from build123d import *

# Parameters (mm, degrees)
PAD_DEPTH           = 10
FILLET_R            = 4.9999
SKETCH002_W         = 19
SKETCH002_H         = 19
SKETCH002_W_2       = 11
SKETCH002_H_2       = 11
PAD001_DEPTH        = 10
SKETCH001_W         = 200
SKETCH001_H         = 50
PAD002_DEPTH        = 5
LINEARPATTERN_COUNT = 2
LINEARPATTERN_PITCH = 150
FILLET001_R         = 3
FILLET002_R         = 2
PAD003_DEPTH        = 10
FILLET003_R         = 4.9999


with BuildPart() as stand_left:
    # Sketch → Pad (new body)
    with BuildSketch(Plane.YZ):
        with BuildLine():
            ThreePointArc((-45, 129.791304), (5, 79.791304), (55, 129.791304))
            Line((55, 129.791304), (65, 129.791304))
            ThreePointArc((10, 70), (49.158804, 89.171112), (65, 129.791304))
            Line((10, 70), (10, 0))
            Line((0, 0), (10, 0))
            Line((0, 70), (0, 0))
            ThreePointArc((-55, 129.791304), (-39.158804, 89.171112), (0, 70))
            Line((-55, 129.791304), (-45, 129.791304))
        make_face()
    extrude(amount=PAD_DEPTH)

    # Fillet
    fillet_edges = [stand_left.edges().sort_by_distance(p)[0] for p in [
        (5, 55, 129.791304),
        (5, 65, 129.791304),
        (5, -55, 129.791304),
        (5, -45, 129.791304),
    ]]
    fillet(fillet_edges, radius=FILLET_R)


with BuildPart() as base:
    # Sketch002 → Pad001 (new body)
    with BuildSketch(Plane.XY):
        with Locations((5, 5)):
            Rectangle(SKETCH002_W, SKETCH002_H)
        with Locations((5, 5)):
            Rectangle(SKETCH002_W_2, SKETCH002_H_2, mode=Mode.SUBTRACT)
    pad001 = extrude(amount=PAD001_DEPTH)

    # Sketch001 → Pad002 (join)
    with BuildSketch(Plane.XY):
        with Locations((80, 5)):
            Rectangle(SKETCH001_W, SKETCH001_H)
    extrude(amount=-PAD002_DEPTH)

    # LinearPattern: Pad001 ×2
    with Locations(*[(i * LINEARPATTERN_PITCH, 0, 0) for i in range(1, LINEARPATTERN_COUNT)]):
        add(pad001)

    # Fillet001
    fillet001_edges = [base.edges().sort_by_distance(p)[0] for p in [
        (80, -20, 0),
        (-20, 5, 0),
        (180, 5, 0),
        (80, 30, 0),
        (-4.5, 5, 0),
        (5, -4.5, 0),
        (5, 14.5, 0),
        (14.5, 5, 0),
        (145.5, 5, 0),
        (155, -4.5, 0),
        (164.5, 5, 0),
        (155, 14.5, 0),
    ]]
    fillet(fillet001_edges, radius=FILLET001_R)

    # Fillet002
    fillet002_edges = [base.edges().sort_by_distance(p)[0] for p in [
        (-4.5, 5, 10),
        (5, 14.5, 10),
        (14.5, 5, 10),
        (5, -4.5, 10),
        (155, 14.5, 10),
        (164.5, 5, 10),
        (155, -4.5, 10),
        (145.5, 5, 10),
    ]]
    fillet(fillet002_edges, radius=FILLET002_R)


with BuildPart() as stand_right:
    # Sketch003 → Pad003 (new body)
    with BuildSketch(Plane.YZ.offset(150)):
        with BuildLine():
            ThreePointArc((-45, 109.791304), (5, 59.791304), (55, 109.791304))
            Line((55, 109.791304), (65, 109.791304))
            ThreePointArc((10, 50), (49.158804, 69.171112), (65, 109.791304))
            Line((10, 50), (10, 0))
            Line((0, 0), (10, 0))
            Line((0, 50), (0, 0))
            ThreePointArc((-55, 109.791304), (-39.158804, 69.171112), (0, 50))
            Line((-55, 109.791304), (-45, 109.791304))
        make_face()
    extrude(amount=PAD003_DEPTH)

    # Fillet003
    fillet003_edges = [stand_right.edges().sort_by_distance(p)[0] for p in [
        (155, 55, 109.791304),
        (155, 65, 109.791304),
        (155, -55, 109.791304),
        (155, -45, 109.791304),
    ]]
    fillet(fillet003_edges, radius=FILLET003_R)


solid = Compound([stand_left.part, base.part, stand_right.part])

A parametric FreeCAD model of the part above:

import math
import FreeCAD as App
import Part
import Sketcher
from FreeCAD import Vector
Q = App.Units.Quantity


def edges_at(feature, points):
    """Names of the edges that pass closest to the given points."""
    edges = feature.Shape.Edges
    near = lambda p: min(range(len(edges)), key=lambda i: edges[i].distToShape(Part.Vertex(*p))[0])
    return sorted({f"Edge{near(p) + 1}" for p in points})


def add_polygon(sketch, points):
    """Adds a closed chain of lines whose ends are joined by coincident constraints."""
    first, n = sketch.GeometryCount, len(points)
    for a, b in zip(points, points[1:] + points[:1]):
        sketch.addGeometry(Part.LineSegment(App.Vector(*a, 0), App.Vector(*b, 0)), False)
    for i in range(n):
        sketch.addConstraint(Sketcher.Constraint("Coincident", first + i, 2, first + (i + 1) % n, 1))

doc = App.newDocument("Part")
body = doc.addObject("PartDesign::Body", "Body")

sketch1 = doc.addObject("Sketcher::SketchObject", "Sketch")
body.addObject(sketch1)
sketch1.AttachmentSupport = (doc.YZ_Plane, [""])
sketch1.MapMode = "FlatFace"
sketch1.addGeometry(Part.ArcOfCircle(Part.Circle(Vector(5, 130, 0), Vector(0, 0, 1), 50), math.radians(180), math.radians(360)), False)
sketch1.addGeometry(Part.LineSegment(Vector(-45, 130, 0), Vector(-55, 130, 0)), False)
sketch1.addGeometry(Part.ArcOfCircle(Part.Circle(Vector(5, 130, 0), Vector(0, 0, 1), 60), math.radians(-180), math.radians(-95)), False)
sketch1.addGeometry(Part.LineSegment(Vector(0, 70, 0), Vector(0, 0, 0)), False)
sketch1.addGeometry(Part.LineSegment(Vector(0, 0, 0), Vector(10, 0, 0)), False)
sketch1.addGeometry(Part.LineSegment(Vector(10, 0, 0), Vector(10, 70, 0)), False)
sketch1.addGeometry(Part.ArcOfCircle(Part.Circle(Vector(5, 130, 0), Vector(0, 0, 1), 60), math.radians(-85), math.radians(0)), False)
sketch1.addGeometry(Part.LineSegment(Vector(65, 130, 0), Vector(55, 130, 0)), False)
sketch1.addConstraint(Sketcher.Constraint("Coincident", 0, 1, 1, 1))
sketch1.addConstraint(Sketcher.Constraint("Coincident", 1, 2, 2, 1))
sketch1.addConstraint(Sketcher.Constraint("Coincident", 2, 2, 3, 1))
sketch1.addConstraint(Sketcher.Constraint("Coincident", 3, 2, 4, 1))
sketch1.addConstraint(Sketcher.Constraint("Coincident", 4, 2, 5, 1))
sketch1.addConstraint(Sketcher.Constraint("Coincident", 5, 2, 6, 1))
sketch1.addConstraint(Sketcher.Constraint("Coincident", 6, 2, 7, 1))
sketch1.addConstraint(Sketcher.Constraint("Coincident", 7, 2, 0, 2))
sketch1.addConstraint(Sketcher.Constraint("Horizontal", 1))
sketch1.addConstraint(Sketcher.Constraint("Vertical", 3))
sketch1.addConstraint(Sketcher.Constraint("Horizontal", 4))
sketch1.addConstraint(Sketcher.Constraint("Vertical", 5))
sketch1.addConstraint(Sketcher.Constraint("Horizontal", 7))
sketch1.addConstraint(Sketcher.Constraint("Coincident", 3, 2, -1, 1))
sketch1.addConstraint(Sketcher.Constraint("Coincident", 2, 3, 0, 3))
sketch1.addConstraint(Sketcher.Constraint("Coincident", 6, 3, 0, 3))
sketch1.addConstraint(Sketcher.Constraint("Equal", 2, 6))
sketch1.addConstraint(Sketcher.Constraint("Symmetric", 1, 2, 7, 2, -2))
sketch1.addConstraint(Sketcher.Constraint("Horizontal", 6, 3, 0, 1))
sketch1.addConstraint(Sketcher.Constraint("Horizontal", 2, 2, 5, 2))
sketch1.addConstraint(Sketcher.Constraint("Radius", 0, Q("50 mm")))
sketch1.addConstraint(Sketcher.Constraint("Radius", 2, Q("60.000001 mm")))
sketch1.addConstraint(Sketcher.Constraint("DistanceY", 3, 2, 3, 1, Q("70 mm")))
pad1 = doc.addObject("PartDesign::Pad", "Pad")
body.addObject(pad1)
pad1.Profile = sketch1
pad1.Length = 10
doc.recompute()

fillet = doc.addObject("PartDesign::Fillet", "Fillet")
body.addObject(fillet)
fillet.Base = (pad1, edges_at(pad1, [
    (5, 55, 129.791),
    (5, 65, 129.791),
    (5, -55, 129.791),
    (5, -45, 129.791),
]))
fillet.Radius = 4.9999
body2 = doc.addObject("PartDesign::Body", "Body001")

sketch2 = doc.addObject("Sketcher::SketchObject", "Sketch001")
body2.addObject(sketch2)
sketch2.AttachmentSupport = (doc.getObject("XY_Plane001"), [""])
sketch2.MapMode = "FlatFace"
add_polygon(sketch2, [(-4, 14), (-4, -4), (14, -4), (14, 14)])
add_polygon(sketch2, [(10, 0), (0, 0), (0, 10), (10, 10)])
sketch2.addConstraint(Sketcher.Constraint("Vertical", 0))
sketch2.addConstraint(Sketcher.Constraint("Horizontal", 1))
sketch2.addConstraint(Sketcher.Constraint("Vertical", 2))
sketch2.addConstraint(Sketcher.Constraint("Horizontal", 3))
sketch2.addConstraint(Sketcher.Constraint("Horizontal", 4))
sketch2.addConstraint(Sketcher.Constraint("Vertical", 5))
sketch2.addConstraint(Sketcher.Constraint("Horizontal", 6))
sketch2.addConstraint(Sketcher.Constraint("Vertical", 7))
sketch2.addConstraint(Sketcher.Constraint("Equal", 3, 0))
sketch2.addConstraint(Sketcher.Constraint("Equal", 6, 5))
sketch2.addConstraint(Sketcher.Constraint("DistanceX", 1, 1, 1, 2, Q("19 mm")))
sketch2.addConstraint(Sketcher.Constraint("DistanceX", 4, 2, 4, 1, Q("11 mm")))
sketch2.addConstraint(Sketcher.Constraint("DistanceX", 0, 2, 4, 2, Q("4 mm")))
sketch2.addConstraint(Sketcher.Constraint("DistanceY", 0, 2, 4, 2, Q("4 mm")))
sketch2.addConstraint(Sketcher.Constraint("DistanceX", 0, 2, -1, 1, Q("4.5 mm")))
sketch2.addConstraint(Sketcher.Constraint("DistanceY", 0, 2, -1, 1, Q("4.5 mm")))
pad2 = doc.addObject("PartDesign::Pad", "Pad001")
body2.addObject(pad2)
pad2.Profile = sketch2
pad2.Length = 10

sketch3 = doc.addObject("Sketcher::SketchObject", "Sketch002")
body2.addObject(sketch3)
sketch3.AttachmentSupport = (doc.getObject("XY_Plane001"), [""])
sketch3.MapMode = "FlatFace"
add_polygon(sketch3, [(-20, 30), (-20, -20), (180, -20), (180, 30)])
sketch3.addConstraint(Sketcher.Constraint("Vertical", 0))
sketch3.addConstraint(Sketcher.Constraint("Horizontal", 1))
sketch3.addConstraint(Sketcher.Constraint("Vertical", 2))
sketch3.addConstraint(Sketcher.Constraint("Horizontal", 3))
sketch3.addConstraint(Sketcher.Constraint("DistanceX", 1, 1, 1, 2, Q("200 mm")))
sketch3.addConstraint(Sketcher.Constraint("DistanceY", 0, 2, 0, 1, Q("50 mm")))
sketch3.addConstraint(Sketcher.Constraint("DistanceX", 0, 2, -1, 1, Q("20 mm")))
sketch3.addConstraint(Sketcher.Constraint("DistanceY", 0, 2, -1, 1, Q("20 mm")))
pad3 = doc.addObject("PartDesign::Pad", "Pad002")
body2.addObject(pad3)
pad3.Profile = sketch3
pad3.Length = 5
pad3.Reversed = True
doc.recompute()

linearpattern = doc.addObject("PartDesign::LinearPattern", "LinearPattern")
body2.addObject(linearpattern)
linearpattern.Originals = [pad2]
linearpattern.Direction = (doc.getObject("X_Axis001"), [""])
linearpattern.Mode = "offset"
linearpattern.Offset = 150
linearpattern.Occurrences = 2
body2.Tip = linearpattern
doc.recompute()

fillet2 = doc.addObject("PartDesign::Fillet", "Fillet001")
body2.addObject(fillet2)
fillet2.Base = (linearpattern, edges_at(linearpattern, [
    (80, -20, 0),
    (-20, 5, 0),
    (180, 5, 0),
    (80, 30, 0),
    (-4.5, 5, 0),
    (5, -4.5, 0),
    (5, 14.5, 0),
    (14.5, 5, 0),
    (145.5, 5, 0),
    (155, -4.5, 0),
    (164.5, 5, 0),
    (155, 14.5, 0),
]))
fillet2.Radius = 3
doc.recompute()

fillet3 = doc.addObject("PartDesign::Fillet", "Fillet002")
body2.addObject(fillet3)
fillet3.Base = (fillet2, edges_at(fillet2, [
    (-4.5, 5, 10),
    (5, 14.5, 10),
    (14.5, 5, 10),
    (5, -4.5, 10),
    (155, 14.5, 10),
    (164.5, 5, 10),
    (155, -4.5, 10),
    (145.5, 5, 10),
]))
fillet3.Radius = 2
body3 = doc.addObject("PartDesign::Body", "Body002")

sketch4 = doc.addObject("Sketcher::SketchObject", "Sketch003")
body3.addObject(sketch4)
sketch4.AttachmentSupport = (doc.getObject("YZ_Plane002"), [""])
sketch4.MapMode = "FlatFace"
sketch4.AttachmentOffset = App.Placement(Vector(0, 0, 150), App.Rotation())
sketch4.addGeometry(Part.ArcOfCircle(Part.Circle(Vector(5, 110, 0), Vector(0, 0, 1), 50), math.radians(180), math.radians(360)), False)
sketch4.addGeometry(Part.LineSegment(Vector(-45, 110, 0), Vector(-55, 110, 0)), False)
sketch4.addGeometry(Part.ArcOfCircle(Part.Circle(Vector(5, 110, 0), Vector(0, 0, 1), 60), math.radians(-180), math.radians(-95)), False)
sketch4.addGeometry(Part.LineSegment(Vector(0, 50, 0), Vector(0, 0, 0)), False)
sketch4.addGeometry(Part.LineSegment(Vector(0, 0, 0), Vector(10, 0, 0)), False)
sketch4.addGeometry(Part.LineSegment(Vector(10, 0, 0), Vector(10, 50, 0)), False)
sketch4.addGeometry(Part.ArcOfCircle(Part.Circle(Vector(5, 110, 0), Vector(0, 0, 1), 60), math.radians(-85), math.radians(0)), False)
sketch4.addGeometry(Part.LineSegment(Vector(65, 110, 0), Vector(55, 110, 0)), False)
sketch4.addConstraint(Sketcher.Constraint("Coincident", 0, 1, 1, 1))
sketch4.addConstraint(Sketcher.Constraint("Coincident", 1, 2, 2, 1))
sketch4.addConstraint(Sketcher.Constraint("Coincident", 2, 2, 3, 1))
sketch4.addConstraint(Sketcher.Constraint("Coincident", 3, 2, 4, 1))
sketch4.addConstraint(Sketcher.Constraint("Coincident", 4, 2, 5, 1))
sketch4.addConstraint(Sketcher.Constraint("Coincident", 5, 2, 6, 1))
sketch4.addConstraint(Sketcher.Constraint("Coincident", 6, 2, 7, 1))
sketch4.addConstraint(Sketcher.Constraint("Coincident", 7, 2, 0, 2))
sketch4.addConstraint(Sketcher.Constraint("Horizontal", 1))
sketch4.addConstraint(Sketcher.Constraint("Vertical", 3))
sketch4.addConstraint(Sketcher.Constraint("Horizontal", 4))
sketch4.addConstraint(Sketcher.Constraint("Vertical", 5))
sketch4.addConstraint(Sketcher.Constraint("Horizontal", 7))
sketch4.addConstraint(Sketcher.Constraint("Coincident", 3, 2, -1, 1))
sketch4.addConstraint(Sketcher.Constraint("Coincident", 2, 3, 0, 3))
sketch4.addConstraint(Sketcher.Constraint("Coincident", 6, 3, 0, 3))
sketch4.addConstraint(Sketcher.Constraint("Equal", 2, 6))
sketch4.addConstraint(Sketcher.Constraint("Symmetric", 1, 2, 7, 2, -2))
sketch4.addConstraint(Sketcher.Constraint("Horizontal", 6, 3, 0, 1))
sketch4.addConstraint(Sketcher.Constraint("Horizontal", 2, 2, 5, 2))
sketch4.addConstraint(Sketcher.Constraint("Radius", 0, Q("50 mm")))
sketch4.addConstraint(Sketcher.Constraint("Radius", 2, Q("60.000001 mm")))
sketch4.addConstraint(Sketcher.Constraint("DistanceY", 3, 2, 3, 1, Q("50 mm")))
pad4 = doc.addObject("PartDesign::Pad", "Pad003")
body3.addObject(pad4)
pad4.Profile = sketch4
pad4.Length = 10
doc.recompute()

fillet4 = doc.addObject("PartDesign::Fillet", "Fillet003")
body3.addObject(fillet4)
fillet4.Base = (pad4, edges_at(pad4, [
    (155, 55, 109.791),
    (155, 65, 109.791),
    (155, -55, 109.791),
    (155, -45, 109.791),
]))
fillet4.Radius = 4.9999

doc.recompute()
